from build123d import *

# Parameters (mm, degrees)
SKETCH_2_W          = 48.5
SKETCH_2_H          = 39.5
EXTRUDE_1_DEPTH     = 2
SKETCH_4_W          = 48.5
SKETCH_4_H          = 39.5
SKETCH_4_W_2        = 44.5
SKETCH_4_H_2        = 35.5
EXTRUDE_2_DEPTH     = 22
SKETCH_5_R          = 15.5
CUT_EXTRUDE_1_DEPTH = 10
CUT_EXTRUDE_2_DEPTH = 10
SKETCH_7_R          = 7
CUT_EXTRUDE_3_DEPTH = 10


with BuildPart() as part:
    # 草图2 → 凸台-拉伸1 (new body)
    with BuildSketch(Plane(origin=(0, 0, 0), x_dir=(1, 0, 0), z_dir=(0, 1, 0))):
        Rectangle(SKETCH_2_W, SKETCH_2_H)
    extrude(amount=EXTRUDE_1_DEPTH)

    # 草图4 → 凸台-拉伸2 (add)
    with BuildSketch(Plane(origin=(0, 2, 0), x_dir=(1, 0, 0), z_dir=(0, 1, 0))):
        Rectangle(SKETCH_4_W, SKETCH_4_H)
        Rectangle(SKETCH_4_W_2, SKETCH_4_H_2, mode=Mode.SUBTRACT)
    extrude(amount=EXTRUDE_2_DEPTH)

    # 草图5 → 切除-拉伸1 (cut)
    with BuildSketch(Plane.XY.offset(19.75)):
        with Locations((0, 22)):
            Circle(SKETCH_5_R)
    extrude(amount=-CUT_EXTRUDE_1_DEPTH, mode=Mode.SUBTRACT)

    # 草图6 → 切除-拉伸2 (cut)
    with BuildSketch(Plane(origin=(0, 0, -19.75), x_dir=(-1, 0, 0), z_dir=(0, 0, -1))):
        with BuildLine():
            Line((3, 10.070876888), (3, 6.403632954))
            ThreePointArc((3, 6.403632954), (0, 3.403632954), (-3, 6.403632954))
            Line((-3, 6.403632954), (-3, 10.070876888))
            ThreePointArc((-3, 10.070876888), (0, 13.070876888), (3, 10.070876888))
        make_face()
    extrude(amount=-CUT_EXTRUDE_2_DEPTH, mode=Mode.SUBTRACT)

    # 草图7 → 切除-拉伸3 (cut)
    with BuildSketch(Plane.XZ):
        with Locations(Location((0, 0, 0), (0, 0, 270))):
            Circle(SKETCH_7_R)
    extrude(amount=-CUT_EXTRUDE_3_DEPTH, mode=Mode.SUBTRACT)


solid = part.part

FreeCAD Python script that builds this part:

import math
import FreeCAD as App
import Part
import Sketcher
from FreeCAD import Vector
Q = App.Units.Quantity


def add_polygon(sketch, points):
    """Adds a closed chain of lines whose ends are joined by coincident constraints."""
    first, n = sketch.GeometryCount, len(points)
    for a, b in zip(points, points[1:] + points[:1]):
        sketch.addGeometry(Part.LineSegment(App.Vector(*a, 0), App.Vector(*b, 0)), False)
    for i in range(n):
        sketch.addConstraint(Sketcher.Constraint("Coincident", first + i, 2, first + (i + 1) % n, 1))

doc = App.newDocument("Part")
body = doc.addObject("PartDesign::Body", "Body")

sketch1 = body.newObject("Sketcher::SketchObject", "Sketch")
sketch1.AttachmentSupport = (doc.getObject("XZ_Plane"), [""])
sketch1.MapMode = "FlatFace"
add_polygon(sketch1, [(-24.25, -19.75), (-24.25, 19.75), (24.25, 19.75), (24.25, -19.75)])
sketch1.addConstraint(Sketcher.Constraint("Vertical", 0))
sketch1.addConstraint(Sketcher.Constraint("Horizontal", 1))
sketch1.addConstraint(Sketcher.Constraint("Vertical", 2))
sketch1.addConstraint(Sketcher.Constraint("Horizontal", 3))
sketch1.addConstraint(Sketcher.Constraint("Symmetric", 0, 2, 2, 2, -1, 1))
sketch1.addConstraint(Sketcher.Constraint("DistanceX", 1, 1, 1, 2, Q("48.5 mm")))
sketch1.addConstraint(Sketcher.Constraint("DistanceY", 0, 1, 0, 2, Q("39.5 mm")))
pad1 = body.newObject("PartDesign::Pad", "Pad")
pad1.Profile = sketch1
pad1.Length = 2
pad1.Reversed = True

sketch2 = body.newObject("Sketcher::SketchObject", "Sketch001")
sketch2.AttachmentSupport = (doc.getObject("XZ_Plane"), [""])
sketch2.MapMode = "FlatFace"
sketch2.AttachmentOffset = App.Placement(Vector(0, 0, -2), App.Rotation())
add_polygon(sketch2, [(-24.25, -19.75), (-24.25, 19.75), (24.25, 19.75), (24.25, -19.75)])
add_polygon(sketch2, [(22.25, 17.75), (-22.25, 17.75), (-22.25, -17.75), (22.25, -17.75)])
sketch2.addConstraint(Sketcher.Constraint("Vertical", 0))
sketch2.addConstraint(Sketcher.Constraint("Horizontal", 1))
sketch2.addConstraint(Sketcher.Constraint("Vertical", 2))
sketch2.addConstraint(Sketcher.Constraint("Horizontal", 3))
sketch2.addConstraint(Sketcher.Constraint("Horizontal", 4))
sketch2.addConstraint(Sketcher.Constraint("Vertical", 5))
sketch2.addConstraint(Sketcher.Constraint("Horizontal", 6))
sketch2.addConstraint(Sketcher.Constraint("Vertical", 7))
sketch2.addConstraint(Sketcher.Constraint("Symmetric", 0, 2, 2, 2, -1, 1))
sketch2.addConstraint(Sketcher.Constraint("Symmetric", 4, 2, 6, 2, -1, 1))
sketch2.addConstraint(Sketcher.Constraint("DistanceX", 1, 1, 1, 2, Q("48.5 mm")))
sketch2.addConstraint(Sketcher.Constraint("DistanceX", 4, 2, 4, 1, Q("44.5 mm")))
sketch2.addConstraint(Sketcher.Constraint("DistanceY", 0, 1, 0, 2, Q("39.5 mm")))
sketch2.addConstraint(Sketcher.Constraint("DistanceY", 5, 2, 5, 1, Q("35.5 mm")))
pad2 = body.newObject("PartDesign::Pad", "Pad001")
pad2.Profile = sketch2
pad2.Length = 22
pad2.Reversed = True

sketch3 = body.newObject("Sketcher::SketchObject", "Sketch002")
sketch3.AttachmentSupport = (doc.getObject("XY_Plane"), [""])
sketch3.MapMode = "FlatFace"
sketch3.AttachmentOffset = App.Placement(Vector(0, 0, 19.75), App.Rotation())
sketch3.addGeometry(Part.Circle(Vector(0, 22, 0), Vector(0, 0, 1), 15.5), False)
sketch3.addConstraint(Sketcher.Constraint("PointOnObject", 0, 3, -2))
sketch3.addConstraint(Sketcher.Constraint("Diameter", 0, Q("31 mm")))
sketch3.addConstraint(Sketcher.Constraint("DistanceY", -1, 1, 0, 3, Q("22 mm")))
pocket1 = body.newObject("PartDesign::Pocket", "Pocket")
pocket1.Profile = sketch3
pocket1.Length = 10

sketch4 = body.newObject("Sketcher::SketchObject", "Sketch003")
sketch4.AttachmentSupport = (doc.getObject("XY_Plane"), [""])
sketch4.MapMode = "FlatFace"
sketch4.AttachmentOffset = App.Placement(Vector(0, 0, -19.75), App.Rotation())
sketch4.addGeometry(Part.LineSegment(Vector(-3, 6.403633, 0), Vector(-3, 10.070877, 0)), False)
sketch4.addGeometry(Part.ArcOfCircle(Part.Circle(Vector(0, 10.070877, 0), Vector(0, 0, 1), 3), math.radians(0), math.radians(180)), False)
sketch4.addGeometry(Part.LineSegment(Vector(3, 10.070877, 0), Vector(3, 6.403633, 0)), False)
sketch4.addGeometry(Part.ArcOfCircle(Part.Circle(Vector(0, 6.403633, 0), Vector(0, 0, 1), 3), math.radians(180), math.radians(360)), False)
sketch4.addConstraint(Sketcher.Constraint("Tangent", 0, 2, 1, 2))
sketch4.addConstraint(Sketcher.Constraint("Tangent", 1, 1, 2, 1))
sketch4.addConstraint(Sketcher.Constraint("Tangent", 2, 2, 3, 2))
sketch4.addConstraint(Sketcher.Constraint("Tangent", 3, 1, 0, 1))
sketch4.addConstraint(Sketcher.Constraint("Vertical", 0))
sketch4.addConstraint(Sketcher.Constraint("Vertical", 2))
sketch4.addConstraint(Sketcher.Constraint("PointOnObject", 1, 3, -2))
sketch4.addConstraint(Sketcher.Constraint("Radius", 1, Q("3 mm")))
sketch4.addConstraint(Sketcher.Constraint("DistanceY", 0, 1, 0, 2, Q("3.667244 mm")))
sketch4.addConstraint(Sketcher.Constraint("DistanceY", -1, 1, 1, 3, Q("10.070877 mm")))
pocket2 = body.newObject("PartDesign::Pocket", "Pocket001")
pocket2.Profile = sketch4
pocket2.Length = 10
pocket2.Reversed = True

sketch5 = body.newObject("Sketcher::SketchObject", "Sketch004")
sketch5.AttachmentSupport = (doc.getObject("XZ_Plane"), [""])
sketch5.MapMode = "FlatFace"
sketch5.addGeometry(Part.Circle(Vector(0, 0, 0), Vector(0, 0, 1), 7), False)
sketch5.addConstraint(Sketcher.Constraint("Coincident", 0, 3, -1, 1))
sketch5.addConstraint(Sketcher.Constraint("Diameter", 0, Q("14 mm")))
pocket3 = body.newObject("PartDesign::Pocket", "Pocket002")
pocket3.Profile = sketch5
pocket3.Length = 10

doc.recompute()
